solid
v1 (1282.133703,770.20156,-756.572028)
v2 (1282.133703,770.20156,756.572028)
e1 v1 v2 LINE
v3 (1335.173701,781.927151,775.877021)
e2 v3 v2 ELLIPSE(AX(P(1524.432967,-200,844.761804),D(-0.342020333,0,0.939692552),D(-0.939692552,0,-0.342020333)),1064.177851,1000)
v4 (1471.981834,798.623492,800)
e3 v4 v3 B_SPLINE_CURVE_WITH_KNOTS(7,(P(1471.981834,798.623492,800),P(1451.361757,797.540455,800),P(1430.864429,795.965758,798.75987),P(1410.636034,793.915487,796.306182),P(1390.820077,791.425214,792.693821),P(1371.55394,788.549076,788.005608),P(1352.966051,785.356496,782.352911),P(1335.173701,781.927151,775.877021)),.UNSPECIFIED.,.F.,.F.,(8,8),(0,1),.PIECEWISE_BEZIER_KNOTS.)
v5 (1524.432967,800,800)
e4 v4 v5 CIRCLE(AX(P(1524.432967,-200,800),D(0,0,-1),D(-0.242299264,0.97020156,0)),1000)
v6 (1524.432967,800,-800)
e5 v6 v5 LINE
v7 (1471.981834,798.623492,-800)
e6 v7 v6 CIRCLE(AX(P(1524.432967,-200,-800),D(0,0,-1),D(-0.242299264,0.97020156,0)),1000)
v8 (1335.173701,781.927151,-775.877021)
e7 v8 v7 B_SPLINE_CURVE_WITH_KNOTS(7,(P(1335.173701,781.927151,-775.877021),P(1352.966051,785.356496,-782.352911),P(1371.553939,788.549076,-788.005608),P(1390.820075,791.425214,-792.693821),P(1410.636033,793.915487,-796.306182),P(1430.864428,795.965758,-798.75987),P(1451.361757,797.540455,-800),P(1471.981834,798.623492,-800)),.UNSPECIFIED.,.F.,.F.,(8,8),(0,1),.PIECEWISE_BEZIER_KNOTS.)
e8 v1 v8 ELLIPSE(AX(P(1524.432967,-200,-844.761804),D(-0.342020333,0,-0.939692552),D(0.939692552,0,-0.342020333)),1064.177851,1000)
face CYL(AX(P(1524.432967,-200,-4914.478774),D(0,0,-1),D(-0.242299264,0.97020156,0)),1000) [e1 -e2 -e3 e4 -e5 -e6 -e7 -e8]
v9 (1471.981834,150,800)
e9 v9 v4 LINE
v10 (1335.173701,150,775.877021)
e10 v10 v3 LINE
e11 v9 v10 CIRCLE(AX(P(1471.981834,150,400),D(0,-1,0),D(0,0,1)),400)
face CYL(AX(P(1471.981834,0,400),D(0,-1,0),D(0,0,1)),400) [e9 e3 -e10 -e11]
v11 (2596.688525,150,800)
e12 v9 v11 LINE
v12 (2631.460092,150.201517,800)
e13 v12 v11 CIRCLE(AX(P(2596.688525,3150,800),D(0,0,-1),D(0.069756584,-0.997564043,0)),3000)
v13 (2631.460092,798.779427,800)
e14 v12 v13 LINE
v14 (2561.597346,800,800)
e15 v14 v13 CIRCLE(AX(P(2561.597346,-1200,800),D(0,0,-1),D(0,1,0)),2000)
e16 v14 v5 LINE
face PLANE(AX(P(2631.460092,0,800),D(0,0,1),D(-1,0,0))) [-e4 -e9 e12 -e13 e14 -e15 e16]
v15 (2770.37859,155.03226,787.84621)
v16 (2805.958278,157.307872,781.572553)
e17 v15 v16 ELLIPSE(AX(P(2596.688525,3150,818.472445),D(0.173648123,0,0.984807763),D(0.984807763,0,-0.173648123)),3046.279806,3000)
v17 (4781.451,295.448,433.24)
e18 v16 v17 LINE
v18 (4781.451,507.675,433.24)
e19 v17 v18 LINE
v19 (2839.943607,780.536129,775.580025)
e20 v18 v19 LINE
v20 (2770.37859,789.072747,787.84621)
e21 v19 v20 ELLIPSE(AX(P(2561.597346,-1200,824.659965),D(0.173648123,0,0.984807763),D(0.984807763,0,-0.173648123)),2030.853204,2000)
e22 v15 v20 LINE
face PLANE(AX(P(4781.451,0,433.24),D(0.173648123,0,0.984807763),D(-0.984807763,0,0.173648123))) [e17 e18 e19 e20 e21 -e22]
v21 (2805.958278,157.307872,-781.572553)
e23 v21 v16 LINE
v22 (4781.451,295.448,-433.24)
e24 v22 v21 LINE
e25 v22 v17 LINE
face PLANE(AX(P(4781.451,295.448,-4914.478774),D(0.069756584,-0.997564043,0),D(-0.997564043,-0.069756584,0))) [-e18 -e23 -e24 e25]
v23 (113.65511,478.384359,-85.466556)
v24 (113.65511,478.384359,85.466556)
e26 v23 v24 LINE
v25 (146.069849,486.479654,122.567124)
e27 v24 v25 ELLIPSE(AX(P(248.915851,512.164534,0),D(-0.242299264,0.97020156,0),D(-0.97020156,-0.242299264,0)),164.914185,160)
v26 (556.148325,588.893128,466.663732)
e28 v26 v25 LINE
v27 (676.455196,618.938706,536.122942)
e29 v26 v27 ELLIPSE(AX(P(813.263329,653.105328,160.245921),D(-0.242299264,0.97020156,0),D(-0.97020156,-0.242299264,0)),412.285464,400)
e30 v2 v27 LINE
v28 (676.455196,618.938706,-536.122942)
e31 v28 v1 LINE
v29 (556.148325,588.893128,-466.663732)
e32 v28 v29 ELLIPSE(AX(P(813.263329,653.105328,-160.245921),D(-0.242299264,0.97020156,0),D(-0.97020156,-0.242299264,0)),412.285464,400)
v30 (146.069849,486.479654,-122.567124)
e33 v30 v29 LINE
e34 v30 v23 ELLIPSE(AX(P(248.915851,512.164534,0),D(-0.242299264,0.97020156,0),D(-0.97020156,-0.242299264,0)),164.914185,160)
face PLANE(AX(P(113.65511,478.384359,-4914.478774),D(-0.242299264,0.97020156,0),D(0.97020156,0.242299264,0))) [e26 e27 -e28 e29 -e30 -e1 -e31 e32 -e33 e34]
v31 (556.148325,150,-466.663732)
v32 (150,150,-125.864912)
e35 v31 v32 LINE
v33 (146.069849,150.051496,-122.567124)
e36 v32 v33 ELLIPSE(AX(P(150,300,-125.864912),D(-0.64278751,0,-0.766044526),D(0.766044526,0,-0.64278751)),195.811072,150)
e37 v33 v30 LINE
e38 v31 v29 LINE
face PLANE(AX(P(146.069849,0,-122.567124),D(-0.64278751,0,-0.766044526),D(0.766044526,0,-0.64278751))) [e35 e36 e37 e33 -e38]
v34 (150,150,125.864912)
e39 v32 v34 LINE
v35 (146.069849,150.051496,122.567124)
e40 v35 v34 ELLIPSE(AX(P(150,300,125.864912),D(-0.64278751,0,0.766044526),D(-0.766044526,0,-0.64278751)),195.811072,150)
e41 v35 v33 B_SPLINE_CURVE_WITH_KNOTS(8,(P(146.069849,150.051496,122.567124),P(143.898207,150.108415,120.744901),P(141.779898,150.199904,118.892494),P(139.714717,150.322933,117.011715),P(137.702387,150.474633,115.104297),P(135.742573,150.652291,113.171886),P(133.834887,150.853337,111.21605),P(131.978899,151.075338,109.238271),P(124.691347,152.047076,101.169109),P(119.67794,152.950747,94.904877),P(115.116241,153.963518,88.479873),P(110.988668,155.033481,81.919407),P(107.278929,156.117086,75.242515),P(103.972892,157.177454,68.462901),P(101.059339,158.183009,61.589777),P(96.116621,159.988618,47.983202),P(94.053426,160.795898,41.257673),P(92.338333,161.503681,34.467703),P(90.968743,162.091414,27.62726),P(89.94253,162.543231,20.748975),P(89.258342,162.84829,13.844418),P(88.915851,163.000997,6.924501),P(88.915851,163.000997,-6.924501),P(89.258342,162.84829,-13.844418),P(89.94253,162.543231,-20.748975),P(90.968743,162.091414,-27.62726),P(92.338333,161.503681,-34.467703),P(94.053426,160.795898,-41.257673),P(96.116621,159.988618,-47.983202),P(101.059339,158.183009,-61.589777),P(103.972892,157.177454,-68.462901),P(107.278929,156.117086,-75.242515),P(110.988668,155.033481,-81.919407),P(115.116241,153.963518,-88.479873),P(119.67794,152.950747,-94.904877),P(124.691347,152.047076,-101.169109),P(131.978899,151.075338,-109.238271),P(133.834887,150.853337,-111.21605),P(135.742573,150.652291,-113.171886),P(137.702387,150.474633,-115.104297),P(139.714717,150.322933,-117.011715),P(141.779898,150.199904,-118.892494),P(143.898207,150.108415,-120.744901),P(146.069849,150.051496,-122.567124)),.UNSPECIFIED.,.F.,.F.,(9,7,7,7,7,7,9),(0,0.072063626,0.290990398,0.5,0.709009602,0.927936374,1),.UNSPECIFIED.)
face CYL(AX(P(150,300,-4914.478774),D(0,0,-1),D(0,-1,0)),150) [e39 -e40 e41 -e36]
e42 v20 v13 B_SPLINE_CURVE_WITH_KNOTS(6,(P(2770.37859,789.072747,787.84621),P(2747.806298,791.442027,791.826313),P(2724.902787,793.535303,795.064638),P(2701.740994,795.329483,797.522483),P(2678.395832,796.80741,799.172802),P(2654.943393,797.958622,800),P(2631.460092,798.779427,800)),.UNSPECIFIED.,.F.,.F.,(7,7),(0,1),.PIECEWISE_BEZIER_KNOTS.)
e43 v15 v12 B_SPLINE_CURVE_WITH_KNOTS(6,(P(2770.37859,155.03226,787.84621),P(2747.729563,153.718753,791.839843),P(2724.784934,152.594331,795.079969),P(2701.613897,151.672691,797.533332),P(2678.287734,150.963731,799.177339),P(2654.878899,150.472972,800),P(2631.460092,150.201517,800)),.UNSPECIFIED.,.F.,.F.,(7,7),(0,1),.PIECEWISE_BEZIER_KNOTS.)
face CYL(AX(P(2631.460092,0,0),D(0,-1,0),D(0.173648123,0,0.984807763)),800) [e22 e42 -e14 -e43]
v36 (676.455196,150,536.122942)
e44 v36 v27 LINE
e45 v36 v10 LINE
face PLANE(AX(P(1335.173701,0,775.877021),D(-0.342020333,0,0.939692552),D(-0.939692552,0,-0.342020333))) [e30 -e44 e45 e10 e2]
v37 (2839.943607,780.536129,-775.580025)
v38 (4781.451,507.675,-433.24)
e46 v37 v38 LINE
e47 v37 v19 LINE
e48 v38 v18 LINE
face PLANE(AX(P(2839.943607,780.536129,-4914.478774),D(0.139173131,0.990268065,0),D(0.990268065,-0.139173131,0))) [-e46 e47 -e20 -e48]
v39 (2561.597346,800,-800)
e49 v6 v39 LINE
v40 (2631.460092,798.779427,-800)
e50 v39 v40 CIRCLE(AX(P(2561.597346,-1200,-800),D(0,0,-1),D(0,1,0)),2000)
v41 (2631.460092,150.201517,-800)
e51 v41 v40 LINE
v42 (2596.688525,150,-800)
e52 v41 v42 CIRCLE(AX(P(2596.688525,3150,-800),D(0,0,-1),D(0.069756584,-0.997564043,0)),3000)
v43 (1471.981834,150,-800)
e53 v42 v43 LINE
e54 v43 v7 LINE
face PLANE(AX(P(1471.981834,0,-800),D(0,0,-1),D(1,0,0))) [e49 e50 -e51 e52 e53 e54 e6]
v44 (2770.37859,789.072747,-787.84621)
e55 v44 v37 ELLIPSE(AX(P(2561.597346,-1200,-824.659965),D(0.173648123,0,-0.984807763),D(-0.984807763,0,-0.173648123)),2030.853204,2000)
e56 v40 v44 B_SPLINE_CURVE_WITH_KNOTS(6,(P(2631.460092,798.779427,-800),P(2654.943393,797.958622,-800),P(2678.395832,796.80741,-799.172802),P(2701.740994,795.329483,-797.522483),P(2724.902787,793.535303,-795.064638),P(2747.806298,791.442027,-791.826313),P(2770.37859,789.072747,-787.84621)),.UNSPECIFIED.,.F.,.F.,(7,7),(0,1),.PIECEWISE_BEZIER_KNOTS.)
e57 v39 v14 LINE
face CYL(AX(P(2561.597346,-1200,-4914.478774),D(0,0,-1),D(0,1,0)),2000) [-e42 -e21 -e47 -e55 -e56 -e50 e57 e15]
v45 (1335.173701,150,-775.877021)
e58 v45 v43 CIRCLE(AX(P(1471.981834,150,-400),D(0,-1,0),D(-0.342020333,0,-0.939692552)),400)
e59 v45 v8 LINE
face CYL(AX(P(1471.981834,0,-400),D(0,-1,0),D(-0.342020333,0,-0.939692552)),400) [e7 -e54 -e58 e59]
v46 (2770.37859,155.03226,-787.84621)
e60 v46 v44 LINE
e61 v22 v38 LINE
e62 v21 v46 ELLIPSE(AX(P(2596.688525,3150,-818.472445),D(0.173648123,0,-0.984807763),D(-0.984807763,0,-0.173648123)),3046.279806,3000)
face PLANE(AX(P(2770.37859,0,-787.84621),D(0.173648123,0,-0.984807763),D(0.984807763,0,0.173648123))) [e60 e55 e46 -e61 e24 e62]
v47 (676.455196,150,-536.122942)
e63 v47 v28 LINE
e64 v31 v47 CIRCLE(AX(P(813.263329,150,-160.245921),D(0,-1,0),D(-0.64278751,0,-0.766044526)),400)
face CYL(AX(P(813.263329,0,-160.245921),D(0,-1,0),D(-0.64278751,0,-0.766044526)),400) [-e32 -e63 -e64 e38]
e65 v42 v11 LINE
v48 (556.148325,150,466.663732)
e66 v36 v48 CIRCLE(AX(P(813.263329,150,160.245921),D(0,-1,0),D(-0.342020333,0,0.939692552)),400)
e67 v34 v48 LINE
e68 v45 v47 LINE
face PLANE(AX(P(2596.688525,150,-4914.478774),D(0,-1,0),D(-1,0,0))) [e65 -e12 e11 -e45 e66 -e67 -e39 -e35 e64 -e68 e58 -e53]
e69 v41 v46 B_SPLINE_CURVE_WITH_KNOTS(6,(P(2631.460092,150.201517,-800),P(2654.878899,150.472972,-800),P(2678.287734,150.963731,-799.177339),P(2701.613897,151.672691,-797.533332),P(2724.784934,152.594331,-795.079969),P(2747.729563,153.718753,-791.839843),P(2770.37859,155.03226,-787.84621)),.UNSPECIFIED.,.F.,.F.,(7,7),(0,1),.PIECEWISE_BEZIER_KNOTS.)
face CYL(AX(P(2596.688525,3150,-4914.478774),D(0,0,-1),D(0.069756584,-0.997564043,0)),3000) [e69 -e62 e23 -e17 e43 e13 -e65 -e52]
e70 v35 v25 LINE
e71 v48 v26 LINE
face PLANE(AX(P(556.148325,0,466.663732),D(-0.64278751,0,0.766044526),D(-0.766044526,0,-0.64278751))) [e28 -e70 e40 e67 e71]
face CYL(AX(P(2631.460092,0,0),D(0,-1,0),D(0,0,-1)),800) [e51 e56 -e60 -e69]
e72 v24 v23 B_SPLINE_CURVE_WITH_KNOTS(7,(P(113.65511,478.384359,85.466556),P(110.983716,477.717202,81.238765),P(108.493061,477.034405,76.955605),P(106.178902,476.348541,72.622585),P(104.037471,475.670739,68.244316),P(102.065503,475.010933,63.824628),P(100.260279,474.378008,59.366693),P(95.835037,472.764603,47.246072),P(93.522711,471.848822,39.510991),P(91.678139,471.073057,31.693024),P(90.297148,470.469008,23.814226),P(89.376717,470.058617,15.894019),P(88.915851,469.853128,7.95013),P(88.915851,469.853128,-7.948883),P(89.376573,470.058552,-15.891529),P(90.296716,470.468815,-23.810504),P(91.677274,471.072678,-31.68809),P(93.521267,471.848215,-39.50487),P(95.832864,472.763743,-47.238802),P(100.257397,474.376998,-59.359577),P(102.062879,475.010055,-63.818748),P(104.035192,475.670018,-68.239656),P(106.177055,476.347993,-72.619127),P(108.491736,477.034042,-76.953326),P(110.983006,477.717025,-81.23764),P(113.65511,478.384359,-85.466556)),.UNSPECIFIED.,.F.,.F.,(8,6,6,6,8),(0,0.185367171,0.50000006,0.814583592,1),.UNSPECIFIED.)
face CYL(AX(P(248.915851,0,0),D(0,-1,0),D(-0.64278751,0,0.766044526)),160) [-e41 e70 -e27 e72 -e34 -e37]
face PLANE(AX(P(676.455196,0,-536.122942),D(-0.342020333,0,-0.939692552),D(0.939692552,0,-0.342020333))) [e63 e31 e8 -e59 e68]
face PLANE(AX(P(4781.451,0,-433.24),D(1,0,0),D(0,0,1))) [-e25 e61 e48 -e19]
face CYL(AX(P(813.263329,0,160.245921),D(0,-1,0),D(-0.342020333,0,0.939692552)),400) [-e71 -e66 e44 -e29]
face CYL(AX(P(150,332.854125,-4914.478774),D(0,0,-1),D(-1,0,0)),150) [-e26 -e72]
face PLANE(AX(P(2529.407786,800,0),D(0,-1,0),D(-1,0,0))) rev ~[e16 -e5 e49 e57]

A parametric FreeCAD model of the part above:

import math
import FreeCAD as App
import Part
import Sketcher
from FreeCAD import Vector
Q = App.Units.Quantity

doc = App.newDocument("Part")
body = doc.addObject("PartDesign::Body", "Body")

# Sketch on XZ plane
sketch1 = body.newObject("Sketcher::SketchObject", "Sketch")
sketch1.AttachmentSupport = (doc.getObject("XZ_Plane"), [""])
sketch1.MapMode = "FlatFace"
sketch1.addGeometry(Part.LineSegment(Vector(556.148325, -466.663732, 0), Vector(146.069849, -122.567124, 0)), False)
sketch1.addGeometry(Part.ArcOfCircle(Part.Circle(Vector(248.915851, 0, 0), Vector(0, 0, 1), 160), math.radians(129.999993), math.radians(230.000007)), False)
sketch1.addGeometry(Part.LineSegment(Vector(146.069849, 122.567124, 0), Vector(556.148325, 466.663732, 0)), False)
sketch1.addGeometry(Part.ArcOfCircle(Part.Circle(Vector(813.263329, 160.245921, 0), Vector(0, 0, 1), 400), math.radians(110.000012), math.radians(129.999993)), False)
sketch1.addGeometry(Part.LineSegment(Vector(676.455196, 536.122942, 0), Vector(1335.173701, 775.877021, 0)), False)
sketch1.addGeometry(Part.ArcOfCircle(Part.Circle(Vector(1471.981834, 400, 0), Vector(0, 0, 1), 400), math.radians(90), math.radians(110.000012)), False)
sketch1.addGeometry(Part.LineSegment(Vector(1471.981834, 800, 0), Vector(2631.460092, 800, 0)), False)
sketch1.addGeometry(Part.ArcOfCircle(Part.Circle(Vector(2631.460092, 0, 0), Vector(0, 0, 1), 800), math.radians(80.000003), math.radians(90)), False)
sketch1.addGeometry(Part.LineSegment(Vector(2770.37859, 787.84621, 0), Vector(4781.451, 433.24, 0)), False)
sketch1.addGeometry(Part.LineSegment(Vector(4781.451, 433.24, 0), Vector(4781.451, -433.24, 0)), False)
sketch1.addGeometry(Part.LineSegment(Vector(4781.451, -433.24, 0), Vector(2770.37859, -787.84621, 0)), False)
sketch1.addGeometry(Part.ArcOfCircle(Part.Circle(Vector(2631.460092, 0, 0), Vector(0, 0, 1), 800), math.radians(-90), math.radians(-80.000003)), False)
sketch1.addGeometry(Part.LineSegment(Vector(2631.460092, -800, 0), Vector(1471.981834, -800, 0)), False)
sketch1.addGeometry(Part.ArcOfCircle(Part.Circle(Vector(1471.981834, -400, 0), Vector(0, 0, 1), 400), math.radians(-110.000012), math.radians(-90)), False)
sketch1.addGeometry(Part.LineSegment(Vector(1335.173701, -775.877021, 0), Vector(676.455196, -536.122942, 0)), False)
sketch1.addGeometry(Part.ArcOfCircle(Part.Circle(Vector(813.263329, -160.245921, 0), Vector(0, 0, 1), 400), math.radians(-129.999993), math.radians(-110.000012)), False)
sketch1.addConstraint(Sketcher.Constraint("Coincident", 0, 2, 1, 2))
sketch1.addConstraint(Sketcher.Constraint("Coincident", 1, 1, 2, 1))
sketch1.addConstraint(Sketcher.Constraint("Coincident", 2, 2, 3, 2))
sketch1.addConstraint(Sketcher.Constraint("Coincident", 3, 1, 4, 1))
sketch1.addConstraint(Sketcher.Constraint("Coincident", 4, 2, 5, 2))
sketch1.addConstraint(Sketcher.Constraint("Coincident", 5, 1, 6, 1))
sketch1.addConstraint(Sketcher.Constraint("Coincident", 6, 2, 7, 2))
sketch1.addConstraint(Sketcher.Constraint("Coincident", 7, 1, 8, 1))
sketch1.addConstraint(Sketcher.Constraint("Coincident", 8, 2, 9, 1))
sketch1.addConstraint(Sketcher.Constraint("Coincident", 9, 2, 10, 1))
sketch1.addConstraint(Sketcher.Constraint("Coincident", 10, 2, 11, 2))
sketch1.addConstraint(Sketcher.Constraint("Coincident", 11, 1, 12, 1))
sketch1.addConstraint(Sketcher.Constraint("Coincident", 12, 2, 13, 2))
sketch1.addConstraint(Sketcher.Constraint("Coincident", 13, 1, 14, 1))
sketch1.addConstraint(Sketcher.Constraint("Coincident", 14, 2, 15, 2))
sketch1.addConstraint(Sketcher.Constraint("Coincident", 15, 1, 0, 1))
sketch1.addConstraint(Sketcher.Constraint("Horizontal", 6))
sketch1.addConstraint(Sketcher.Constraint("Vertical", 9))
sketch1.addConstraint(Sketcher.Constraint("Horizontal", 12))
sketch1.addConstraint(Sketcher.Constraint("Coincident", 11, 3, 7, 3))
sketch1.addConstraint(Sketcher.Constraint("PointOnObject", 1, 3, -1))
sketch1.addConstraint(Sketcher.Constraint("PointOnObject", 7, 3, -1))
sketch1.addConstraint(Sketcher.Constraint("Radius", 1, Q("160 mm")))
sketch1.addConstraint(Sketcher.Constraint("Radius", 3, Q("400 mm")))
sketch1.addConstraint(Sketcher.Constraint("Radius", 5, Q("400 mm")))
sketch1.addConstraint(Sketcher.Constraint("Radius", 7, Q("800 mm")))
sketch1.addConstraint(Sketcher.Constraint("Radius", 11, Q("800 mm")))
sketch1.addConstraint(Sketcher.Constraint("Radius", 13, Q("400 mm")))
sketch1.addConstraint(Sketcher.Constraint("Radius", 15, Q("400 mm")))
sketch1.addConstraint(Sketcher.Constraint("DistanceY", 9, 2, 9, 1, Q("866.48 mm")))
sketch1.addConstraint(Sketcher.Constraint("DistanceY", -1, 1, 8, 2, Q("433.24 mm")))
sketch1.addConstraint(Sketcher.Constraint("DistanceX", -1, 1, 8, 2, Q("4781.451 mm")))
sketch1.addConstraint(Sketcher.Constraint("DistanceX", 0, 2, 1, 3, Q("102.846002 mm")))
sketch1.addConstraint(Sketcher.Constraint("DistanceX", 1, 1, 1, 3, Q("102.846002 mm")))
sketch1.addConstraint(Sketcher.Constraint("DistanceX", -1, 1, 4, 2, Q("1335.173701 mm")))
sketch1.addConstraint(Sketcher.Constraint("DistanceX", -1, 1, 13, 1, Q("1335.173701 mm")))
sketch1.addConstraint(Sketcher.Constraint("DistanceY", 3, 3, 4, 2, Q("615.6311 mm")))
sketch1.addConstraint(Sketcher.Constraint("DistanceX", 11, 3, 10, 2, Q("138.918498 mm")))
sketch1.addConstraint(Sketcher.Constraint("DistanceX", 6, 2, 10, 2, Q("138.918498 mm")))
sketch1.addConstraint(Sketcher.Constraint("DistanceY", 13, 1, 15, 3, Q("615.6311 mm")))
sketch1.addConstraint(Sketcher.Constraint("DistanceX", 6, 1, 6, 2, Q("1159.478258 mm")))
sketch1.addConstraint(Sketcher.Constraint("DistanceX", 12, 2, 12, 1, Q("1159.478258 mm")))
sketch1.addConstraint(Sketcher.Constraint("DistanceX", -1, 1, 1, 3, Q("248.915851 mm")))
sketch1.addConstraint(Sketcher.Constraint("DistanceX", -1, 1, 3, 3, Q("813.263329 mm")))
sketch1.addConstraint(Sketcher.Constraint("DistanceY", -1, 1, 3, 3, Q("160.245921 mm")))
sketch1.addConstraint(Sketcher.Constraint("DistanceX", -1, 1, 7, 3, Q("2631.460092 mm")))
sketch1.addConstraint(Sketcher.Constraint("DistanceX", -1, 1, 15, 3, Q("813.263329 mm")))
sketch1.addConstraint(Sketcher.Constraint("DistanceY", 15, 3, -1, 1, Q("160.245921 mm")))
sketch1.addConstraint(Sketcher.Constraint("DistanceY", -1, 1, 2, 2, Q("466.663732 mm")))
sketch1.addConstraint(Sketcher.Constraint("DistanceY", -1, 1, 3, 1, Q("536.122942 mm")))
sketch1.addConstraint(Sketcher.Constraint("DistanceY", 14, 2, -1, 1, Q("536.122942 mm")))
sketch1.addConstraint(Sketcher.Constraint("DistanceY", 15, 1, -1, 1, Q("466.663732 mm")))
sketch1.addConstraint(Sketcher.Constraint("Distance", 8, Q("2042.096424 mm")))
sketch1.addConstraint(Sketcher.Constraint("DistanceX", -1, 1, 12, 2, Q("1471.981834 mm")))
pad1 = body.newObject("PartDesign::Pad", "Pad")
pad1.Profile = sketch1
pad1.Length = 800
pad1.Reversed = True

# Sketch on XY plane
sketch2 = body.newObject("Sketcher::SketchObject", "Sketch001")
sketch2.AttachmentSupport = (doc.getObject("XY_Plane"), [""])
sketch2.MapMode = "FlatFace"
sketch2.addGeometry(Part.LineSegment(Vector(-414.278, 1303.194, 0), Vector(-414.278, -503.194, 0)), False)
sketch2.addGeometry(Part.LineSegment(Vector(-414.278, -503.194, 0), Vector(5284.645, -503.194, 0)), False)
sketch2.addGeometry(Part.LineSegment(Vector(5284.645, -503.194, 0), Vector(5284.645, 1303.194, 0)), False)
sketch2.addGeometry(Part.LineSegment(Vector(5284.645, 1303.194, 0), Vector(-414.278, 1303.194, 0)), False)
sketch2.addGeometry(Part.ArcOfCircle(Part.Circle(Vector(150, 300, 0), Vector(0, 0, 1), 150), math.radians(180), math.radians(270)), False)
sketch2.addGeometry(Part.LineSegment(Vector(0, 300, 0), Vector(0, 332.854125, 0)), False)
sketch2.addGeometry(Part.ArcOfCircle(Part.Circle(Vector(150, 332.854125, 0), Vector(0, 0, 1), 150), math.radians(104.022285), math.radians(180)), False)
sketch2.addGeometry(Part.LineSegment(Vector(113.65511, 478.384359, 0), Vector(1282.133703, 770.20156, 0)), False)
sketch2.addGeometry(Part.ArcOfCircle(Part.Circle(Vector(1524.432967, -200, 0), Vector(0, 0, 1), 1000), math.radians(90), math.radians(104.022285)), False)
sketch2.addGeometry(Part.LineSegment(Vector(1524.432967, 800, 0), Vector(2561.597346, 800, 0)), False)
sketch2.addGeometry(Part.ArcOfCircle(Part.Circle(Vector(2561.597346, -1200, 0), Vector(0, 0, 1), 2000), math.radians(81.999998), math.radians(90)), False)
sketch2.addGeometry(Part.LineSegment(Vector(2839.943607, 780.536129, 0), Vector(4781.451, 507.675, 0)), False)
sketch2.addGeometry(Part.LineSegment(Vector(4781.451, 507.675, 0), Vector(4781.451, 295.448, 0)), False)
sketch2.addGeometry(Part.LineSegment(Vector(4781.451, 295.448, 0), Vector(2805.958278, 157.307872, 0)), False)
sketch2.addGeometry(Part.ArcOfCircle(Part.Circle(Vector(2596.688525, 3150, 0), Vector(0, 0, 1), 3000), math.radians(-90), math.radians(-85.999994)), False)
sketch2.addGeometry(Part.LineSegment(Vector(2596.688525, 150, 0), Vector(150, 150, 0)), False)
sketch2.addConstraint(Sketcher.Constraint("Coincident", 0, 2, 1, 1))
sketch2.addConstraint(Sketcher.Constraint("Coincident", 1, 2, 2, 1))
sketch2.addConstraint(Sketcher.Constraint("Coincident", 2, 2, 3, 1))
sketch2.addConstraint(Sketcher.Constraint("Coincident", 3, 2, 0, 1))
sketch2.addConstraint(Sketcher.Constraint("Coincident", 4, 1, 5, 1))
sketch2.addConstraint(Sketcher.Constraint("Coincident", 5, 2, 6, 2))
sketch2.addConstraint(Sketcher.Constraint("Coincident", 6, 1, 7, 1))
sketch2.addConstraint(Sketcher.Constraint("Coincident", 7, 2, 8, 2))
sketch2.addConstraint(Sketcher.Constraint("Coincident", 8, 1, 9, 1))
sketch2.addConstraint(Sketcher.Constraint("Coincident", 9, 2, 10, 2))
sketch2.addConstraint(Sketcher.Constraint("Coincident", 10, 1, 11, 1))
sketch2.addConstraint(Sketcher.Constraint("Coincident", 11, 2, 12, 1))
sketch2.addConstraint(Sketcher.Constraint("Coincident", 12, 2, 13, 1))
sketch2.addConstraint(Sketcher.Constraint("Coincident", 13, 2, 14, 2))
sketch2.addConstraint(Sketcher.Constraint("Coincident", 14, 1, 15, 1))
sketch2.addConstraint(Sketcher.Constraint("Coincident", 15, 2, 4, 2))
sketch2.addConstraint(Sketcher.Constraint("Vertical", 0))
sketch2.addConstraint(Sketcher.Constraint("Horizontal", 1))
sketch2.addConstraint(Sketcher.Constraint("Vertical", 2))
sketch2.addConstraint(Sketcher.Constraint("Horizontal", 3))
sketch2.addConstraint(Sketcher.Constraint("Vertical", 5))
sketch2.addConstraint(Sketcher.Constraint("Horizontal", 9))
sketch2.addConstraint(Sketcher.Constraint("Vertical", 12))
sketch2.addConstraint(Sketcher.Constraint("Horizontal", 15))
sketch2.addConstraint(Sketcher.Constraint("PointOnObject", 4, 1, -2))
sketch2.addConstraint(Sketcher.Constraint("Radius", 4, Q("150 mm")))
sketch2.addConstraint(Sketcher.Constraint("Radius", 6, Q("150 mm")))
sketch2.addConstraint(Sketcher.Constraint("Radius", 8, Q("1000 mm")))
sketch2.addConstraint(Sketcher.Constraint("Radius", 10, Q("2000 mm")))
sketch2.addConstraint(Sketcher.Constraint("Radius", 14, Q("3000 mm")))
sketch2.addConstraint(Sketcher.Constraint("DistanceY", -1, 1, 4, 3, Q("300 mm")))
sketch2.addConstraint(Sketcher.Constraint("DistanceY", 8, 3, -1, 1, Q("200 mm")))
sketch2.addConstraint(Sketcher.Constraint("DistanceY", -1, 1, 4, 1, Q("300 mm")))
sketch2.addConstraint(Sketcher.Constraint("DistanceX", -1, 1, 15, 2, Q("150 mm")))
sketch2.addConstraint(Sketcher.Constraint("DistanceX", 1, 1, 1, 2, Q("5698.923 mm")))
sketch2.addConstraint(Sketcher.Constraint("DistanceY", 0, 2, 0, 1, Q("1806.388 mm")))
sketch2.addConstraint(Sketcher.Constraint("DistanceY", 12, 2, 12, 1, Q("212.227 mm")))
sketch2.addConstraint(Sketcher.Constraint("DistanceX", 0, 2, -1, 1, Q("414.278 mm")))
sketch2.addConstraint(Sketcher.Constraint("DistanceY", 0, 2, -1, 1, Q("503.194 mm")))
sketch2.addConstraint(Sketcher.Constraint("DistanceX", -1, 1, 11, 2, Q("4781.451 mm")))
sketch2.addConstraint(Sketcher.Constraint("DistanceY", -1, 1, 11, 2, Q("507.675 mm")))
sketch2.addConstraint(Sketcher.Constraint("DistanceX", 9, 1, 9, 2, Q("1037.164378 mm")))
sketch2.addConstraint(Sketcher.Constraint("DistanceY", 6, 1, 7, 2, Q("291.817201 mm")))
sketch2.addConstraint(Sketcher.Constraint("Distance", 13, Q("1980.31669 mm")))
sketch2.addConstraint(Sketcher.Constraint("DistanceX", 15, 2, 15, 1, Q("2446.688525 mm")))
sketch2.addConstraint(Sketcher.Constraint("DistanceY", 5, 1, 5, 2, Q("32.854125 mm")))
sketch2.addConstraint(Sketcher.Constraint("DistanceX", -1, 1, 6, 1, Q("113.65511 mm")))
sketch2.addConstraint(Sketcher.Constraint("DistanceY", -1, 1, 6, 1, Q("478.384359 mm")))
sketch2.addConstraint(Sketcher.Constraint("DistanceX", 8, 3, 10, 3, Q("1037.164378 mm")))
sketch2.addConstraint(Sketcher.Constraint("DistanceX", 8, 3, 14, 3, Q("1072.255558 mm")))
sketch2.addConstraint(Sketcher.Constraint("DistanceX", 8, 3, 9, 2, Q("1037.164378 mm")))
sketch2.addConstraint(Sketcher.Constraint("DistanceX", 9, 2, 13, 2, Q("244.360932 mm")))
sketch2.addConstraint(Sketcher.Constraint("Distance", 11, Q("1960.587706 mm")))
pocket1 = body.newObject("PartDesign::Pocket", "Pocket")
pocket1.Profile = sketch2
pocket1.Type = "ThroughAll"
pocket1.Midplane = True

doc.recompute()
